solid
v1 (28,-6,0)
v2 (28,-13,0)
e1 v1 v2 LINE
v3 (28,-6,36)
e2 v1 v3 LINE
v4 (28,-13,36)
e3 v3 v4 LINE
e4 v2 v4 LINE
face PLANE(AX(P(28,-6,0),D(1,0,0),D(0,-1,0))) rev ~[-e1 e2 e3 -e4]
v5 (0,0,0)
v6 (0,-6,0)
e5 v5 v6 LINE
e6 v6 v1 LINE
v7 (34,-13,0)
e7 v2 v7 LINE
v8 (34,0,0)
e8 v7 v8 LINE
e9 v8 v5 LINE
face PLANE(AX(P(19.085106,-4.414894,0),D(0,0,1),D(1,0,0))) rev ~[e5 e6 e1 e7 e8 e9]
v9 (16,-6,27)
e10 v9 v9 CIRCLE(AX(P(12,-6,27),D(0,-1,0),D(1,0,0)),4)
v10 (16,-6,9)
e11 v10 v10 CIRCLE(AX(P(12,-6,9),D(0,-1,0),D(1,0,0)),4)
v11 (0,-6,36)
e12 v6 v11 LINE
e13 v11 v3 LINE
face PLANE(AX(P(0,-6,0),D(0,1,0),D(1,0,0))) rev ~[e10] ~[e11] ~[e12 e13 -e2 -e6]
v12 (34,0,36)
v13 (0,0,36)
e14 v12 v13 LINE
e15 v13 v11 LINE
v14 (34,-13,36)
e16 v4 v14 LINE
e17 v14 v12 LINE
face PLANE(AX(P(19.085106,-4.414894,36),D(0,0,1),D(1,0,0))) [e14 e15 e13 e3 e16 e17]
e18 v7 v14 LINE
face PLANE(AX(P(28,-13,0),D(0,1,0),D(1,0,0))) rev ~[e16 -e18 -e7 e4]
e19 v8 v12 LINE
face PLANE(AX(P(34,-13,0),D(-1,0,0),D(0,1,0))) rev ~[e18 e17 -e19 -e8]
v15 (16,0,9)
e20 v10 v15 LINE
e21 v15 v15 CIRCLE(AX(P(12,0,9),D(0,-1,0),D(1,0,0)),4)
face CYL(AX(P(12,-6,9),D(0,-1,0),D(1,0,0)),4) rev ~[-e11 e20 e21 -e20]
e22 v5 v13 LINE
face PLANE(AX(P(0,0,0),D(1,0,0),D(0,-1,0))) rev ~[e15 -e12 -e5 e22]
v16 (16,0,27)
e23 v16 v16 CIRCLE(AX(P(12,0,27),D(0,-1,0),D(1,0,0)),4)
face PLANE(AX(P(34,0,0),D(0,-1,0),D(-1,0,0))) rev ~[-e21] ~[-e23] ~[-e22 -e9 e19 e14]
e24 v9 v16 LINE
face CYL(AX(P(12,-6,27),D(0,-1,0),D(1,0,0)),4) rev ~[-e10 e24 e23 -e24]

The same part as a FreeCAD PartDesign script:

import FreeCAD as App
import Part
import Sketcher
from FreeCAD import Vector
Q = App.Units.Quantity

doc = App.newDocument("Part")
body = doc.addObject("PartDesign::Body", "Body")

sketch1 = body.newObject("Sketcher::SketchObject", "Sketch")
sketch1.AttachmentSupport = (doc.getObject("XY_Plane"), [""])
sketch1.MapMode = "FlatFace"
sketch1.addGeometry(Part.LineSegment(Vector(34, 0, 0), Vector(0, 0, 0)), False)
sketch1.addGeometry(Part.LineSegment(Vector(0, 0, 0), Vector(0, -6, 0)), False)
sketch1.addGeometry(Part.LineSegment(Vector(0, -6, 0), Vector(28, -6, 0)), False)
sketch1.addGeometry(Part.LineSegment(Vector(28, -6, 0), Vector(28, -13, 0)), False)
sketch1.addGeometry(Part.LineSegment(Vector(28, -13, 0), Vector(34, -13, 0)), False)
sketch1.addGeometry(Part.LineSegment(Vector(34, -13, 0), Vector(34, 0, 0)), False)
sketch1.addConstraint(Sketcher.Constraint("Coincident", 0, 2, 1, 1))
sketch1.addConstraint(Sketcher.Constraint("Coincident", 1, 2, 2, 1))
sketch1.addConstraint(Sketcher.Constraint("Coincident", 2, 2, 3, 1))
sketch1.addConstraint(Sketcher.Constraint("Coincident", 3, 2, 4, 1))
sketch1.addConstraint(Sketcher.Constraint("Coincident", 4, 2, 5, 1))
sketch1.addConstraint(Sketcher.Constraint("Coincident", 5, 2, 0, 1))
sketch1.addConstraint(Sketcher.Constraint("Horizontal", 0))
sketch1.addConstraint(Sketcher.Constraint("Vertical", 1))
sketch1.addConstraint(Sketcher.Constraint("Horizontal", 2))
sketch1.addConstraint(Sketcher.Constraint("Vertical", 3))
sketch1.addConstraint(Sketcher.Constraint("Horizontal", 4))
sketch1.addConstraint(Sketcher.Constraint("Vertical", 5))
sketch1.addConstraint(Sketcher.Constraint("Coincident", 0, 2, -1, 1))
sketch1.addConstraint(Sketcher.Constraint("Equal", 4, 1))
sketch1.addConstraint(Sketcher.Constraint("DistanceX", 0, 2, 0, 1, Q("34 mm")))
sketch1.addConstraint(Sketcher.Constraint("DistanceX", 2, 1, 2, 2, Q("28 mm")))
sketch1.addConstraint(Sketcher.Constraint("DistanceY", 3, 2, 3, 1, Q("7 mm")))
pad1 = body.newObject("PartDesign::Pad", "Pad")
pad1.Profile = sketch1
pad1.Length = 36

sketch2 = body.newObject("Sketcher::SketchObject", "Sketch001")
sketch2.AttachmentSupport = (doc.getObject("XZ_Plane"), [""])
sketch2.MapMode = "FlatFace"
sketch2.AttachmentOffset = App.Placement(Vector(0, 0, 6), App.Rotation())
sketch2.addGeometry(Part.Circle(Vector(12, 27, 0), Vector(0, 0, 1), 4), False)
sketch2.addGeometry(Part.Circle(Vector(12, 9, 0), Vector(0, 0, 1), 4), False)
sketch2.addConstraint(Sketcher.Constraint("Equal", 0, 1))
sketch2.addConstraint(Sketcher.Constraint("Vertical", 0, 3, 1, 3))
sketch2.addConstraint(Sketcher.Constraint("Diameter", 0, Q("8 mm")))
sketch2.addConstraint(Sketcher.Constraint("DistanceX", -1, 1, 0, 3, Q("12 mm")))
sketch2.addConstraint(Sketcher.Constraint("DistanceY", -1, 1, 0, 3, Q("27 mm")))
sketch2.addConstraint(Sketcher.Constraint("DistanceY", -1, 1, 1, 3, Q("9 mm")))
pocket1 = body.newObject("PartDesign::Pocket", "Pocket")
pocket1.Profile = sketch2
pocket1.Length = 25

doc.recompute()
